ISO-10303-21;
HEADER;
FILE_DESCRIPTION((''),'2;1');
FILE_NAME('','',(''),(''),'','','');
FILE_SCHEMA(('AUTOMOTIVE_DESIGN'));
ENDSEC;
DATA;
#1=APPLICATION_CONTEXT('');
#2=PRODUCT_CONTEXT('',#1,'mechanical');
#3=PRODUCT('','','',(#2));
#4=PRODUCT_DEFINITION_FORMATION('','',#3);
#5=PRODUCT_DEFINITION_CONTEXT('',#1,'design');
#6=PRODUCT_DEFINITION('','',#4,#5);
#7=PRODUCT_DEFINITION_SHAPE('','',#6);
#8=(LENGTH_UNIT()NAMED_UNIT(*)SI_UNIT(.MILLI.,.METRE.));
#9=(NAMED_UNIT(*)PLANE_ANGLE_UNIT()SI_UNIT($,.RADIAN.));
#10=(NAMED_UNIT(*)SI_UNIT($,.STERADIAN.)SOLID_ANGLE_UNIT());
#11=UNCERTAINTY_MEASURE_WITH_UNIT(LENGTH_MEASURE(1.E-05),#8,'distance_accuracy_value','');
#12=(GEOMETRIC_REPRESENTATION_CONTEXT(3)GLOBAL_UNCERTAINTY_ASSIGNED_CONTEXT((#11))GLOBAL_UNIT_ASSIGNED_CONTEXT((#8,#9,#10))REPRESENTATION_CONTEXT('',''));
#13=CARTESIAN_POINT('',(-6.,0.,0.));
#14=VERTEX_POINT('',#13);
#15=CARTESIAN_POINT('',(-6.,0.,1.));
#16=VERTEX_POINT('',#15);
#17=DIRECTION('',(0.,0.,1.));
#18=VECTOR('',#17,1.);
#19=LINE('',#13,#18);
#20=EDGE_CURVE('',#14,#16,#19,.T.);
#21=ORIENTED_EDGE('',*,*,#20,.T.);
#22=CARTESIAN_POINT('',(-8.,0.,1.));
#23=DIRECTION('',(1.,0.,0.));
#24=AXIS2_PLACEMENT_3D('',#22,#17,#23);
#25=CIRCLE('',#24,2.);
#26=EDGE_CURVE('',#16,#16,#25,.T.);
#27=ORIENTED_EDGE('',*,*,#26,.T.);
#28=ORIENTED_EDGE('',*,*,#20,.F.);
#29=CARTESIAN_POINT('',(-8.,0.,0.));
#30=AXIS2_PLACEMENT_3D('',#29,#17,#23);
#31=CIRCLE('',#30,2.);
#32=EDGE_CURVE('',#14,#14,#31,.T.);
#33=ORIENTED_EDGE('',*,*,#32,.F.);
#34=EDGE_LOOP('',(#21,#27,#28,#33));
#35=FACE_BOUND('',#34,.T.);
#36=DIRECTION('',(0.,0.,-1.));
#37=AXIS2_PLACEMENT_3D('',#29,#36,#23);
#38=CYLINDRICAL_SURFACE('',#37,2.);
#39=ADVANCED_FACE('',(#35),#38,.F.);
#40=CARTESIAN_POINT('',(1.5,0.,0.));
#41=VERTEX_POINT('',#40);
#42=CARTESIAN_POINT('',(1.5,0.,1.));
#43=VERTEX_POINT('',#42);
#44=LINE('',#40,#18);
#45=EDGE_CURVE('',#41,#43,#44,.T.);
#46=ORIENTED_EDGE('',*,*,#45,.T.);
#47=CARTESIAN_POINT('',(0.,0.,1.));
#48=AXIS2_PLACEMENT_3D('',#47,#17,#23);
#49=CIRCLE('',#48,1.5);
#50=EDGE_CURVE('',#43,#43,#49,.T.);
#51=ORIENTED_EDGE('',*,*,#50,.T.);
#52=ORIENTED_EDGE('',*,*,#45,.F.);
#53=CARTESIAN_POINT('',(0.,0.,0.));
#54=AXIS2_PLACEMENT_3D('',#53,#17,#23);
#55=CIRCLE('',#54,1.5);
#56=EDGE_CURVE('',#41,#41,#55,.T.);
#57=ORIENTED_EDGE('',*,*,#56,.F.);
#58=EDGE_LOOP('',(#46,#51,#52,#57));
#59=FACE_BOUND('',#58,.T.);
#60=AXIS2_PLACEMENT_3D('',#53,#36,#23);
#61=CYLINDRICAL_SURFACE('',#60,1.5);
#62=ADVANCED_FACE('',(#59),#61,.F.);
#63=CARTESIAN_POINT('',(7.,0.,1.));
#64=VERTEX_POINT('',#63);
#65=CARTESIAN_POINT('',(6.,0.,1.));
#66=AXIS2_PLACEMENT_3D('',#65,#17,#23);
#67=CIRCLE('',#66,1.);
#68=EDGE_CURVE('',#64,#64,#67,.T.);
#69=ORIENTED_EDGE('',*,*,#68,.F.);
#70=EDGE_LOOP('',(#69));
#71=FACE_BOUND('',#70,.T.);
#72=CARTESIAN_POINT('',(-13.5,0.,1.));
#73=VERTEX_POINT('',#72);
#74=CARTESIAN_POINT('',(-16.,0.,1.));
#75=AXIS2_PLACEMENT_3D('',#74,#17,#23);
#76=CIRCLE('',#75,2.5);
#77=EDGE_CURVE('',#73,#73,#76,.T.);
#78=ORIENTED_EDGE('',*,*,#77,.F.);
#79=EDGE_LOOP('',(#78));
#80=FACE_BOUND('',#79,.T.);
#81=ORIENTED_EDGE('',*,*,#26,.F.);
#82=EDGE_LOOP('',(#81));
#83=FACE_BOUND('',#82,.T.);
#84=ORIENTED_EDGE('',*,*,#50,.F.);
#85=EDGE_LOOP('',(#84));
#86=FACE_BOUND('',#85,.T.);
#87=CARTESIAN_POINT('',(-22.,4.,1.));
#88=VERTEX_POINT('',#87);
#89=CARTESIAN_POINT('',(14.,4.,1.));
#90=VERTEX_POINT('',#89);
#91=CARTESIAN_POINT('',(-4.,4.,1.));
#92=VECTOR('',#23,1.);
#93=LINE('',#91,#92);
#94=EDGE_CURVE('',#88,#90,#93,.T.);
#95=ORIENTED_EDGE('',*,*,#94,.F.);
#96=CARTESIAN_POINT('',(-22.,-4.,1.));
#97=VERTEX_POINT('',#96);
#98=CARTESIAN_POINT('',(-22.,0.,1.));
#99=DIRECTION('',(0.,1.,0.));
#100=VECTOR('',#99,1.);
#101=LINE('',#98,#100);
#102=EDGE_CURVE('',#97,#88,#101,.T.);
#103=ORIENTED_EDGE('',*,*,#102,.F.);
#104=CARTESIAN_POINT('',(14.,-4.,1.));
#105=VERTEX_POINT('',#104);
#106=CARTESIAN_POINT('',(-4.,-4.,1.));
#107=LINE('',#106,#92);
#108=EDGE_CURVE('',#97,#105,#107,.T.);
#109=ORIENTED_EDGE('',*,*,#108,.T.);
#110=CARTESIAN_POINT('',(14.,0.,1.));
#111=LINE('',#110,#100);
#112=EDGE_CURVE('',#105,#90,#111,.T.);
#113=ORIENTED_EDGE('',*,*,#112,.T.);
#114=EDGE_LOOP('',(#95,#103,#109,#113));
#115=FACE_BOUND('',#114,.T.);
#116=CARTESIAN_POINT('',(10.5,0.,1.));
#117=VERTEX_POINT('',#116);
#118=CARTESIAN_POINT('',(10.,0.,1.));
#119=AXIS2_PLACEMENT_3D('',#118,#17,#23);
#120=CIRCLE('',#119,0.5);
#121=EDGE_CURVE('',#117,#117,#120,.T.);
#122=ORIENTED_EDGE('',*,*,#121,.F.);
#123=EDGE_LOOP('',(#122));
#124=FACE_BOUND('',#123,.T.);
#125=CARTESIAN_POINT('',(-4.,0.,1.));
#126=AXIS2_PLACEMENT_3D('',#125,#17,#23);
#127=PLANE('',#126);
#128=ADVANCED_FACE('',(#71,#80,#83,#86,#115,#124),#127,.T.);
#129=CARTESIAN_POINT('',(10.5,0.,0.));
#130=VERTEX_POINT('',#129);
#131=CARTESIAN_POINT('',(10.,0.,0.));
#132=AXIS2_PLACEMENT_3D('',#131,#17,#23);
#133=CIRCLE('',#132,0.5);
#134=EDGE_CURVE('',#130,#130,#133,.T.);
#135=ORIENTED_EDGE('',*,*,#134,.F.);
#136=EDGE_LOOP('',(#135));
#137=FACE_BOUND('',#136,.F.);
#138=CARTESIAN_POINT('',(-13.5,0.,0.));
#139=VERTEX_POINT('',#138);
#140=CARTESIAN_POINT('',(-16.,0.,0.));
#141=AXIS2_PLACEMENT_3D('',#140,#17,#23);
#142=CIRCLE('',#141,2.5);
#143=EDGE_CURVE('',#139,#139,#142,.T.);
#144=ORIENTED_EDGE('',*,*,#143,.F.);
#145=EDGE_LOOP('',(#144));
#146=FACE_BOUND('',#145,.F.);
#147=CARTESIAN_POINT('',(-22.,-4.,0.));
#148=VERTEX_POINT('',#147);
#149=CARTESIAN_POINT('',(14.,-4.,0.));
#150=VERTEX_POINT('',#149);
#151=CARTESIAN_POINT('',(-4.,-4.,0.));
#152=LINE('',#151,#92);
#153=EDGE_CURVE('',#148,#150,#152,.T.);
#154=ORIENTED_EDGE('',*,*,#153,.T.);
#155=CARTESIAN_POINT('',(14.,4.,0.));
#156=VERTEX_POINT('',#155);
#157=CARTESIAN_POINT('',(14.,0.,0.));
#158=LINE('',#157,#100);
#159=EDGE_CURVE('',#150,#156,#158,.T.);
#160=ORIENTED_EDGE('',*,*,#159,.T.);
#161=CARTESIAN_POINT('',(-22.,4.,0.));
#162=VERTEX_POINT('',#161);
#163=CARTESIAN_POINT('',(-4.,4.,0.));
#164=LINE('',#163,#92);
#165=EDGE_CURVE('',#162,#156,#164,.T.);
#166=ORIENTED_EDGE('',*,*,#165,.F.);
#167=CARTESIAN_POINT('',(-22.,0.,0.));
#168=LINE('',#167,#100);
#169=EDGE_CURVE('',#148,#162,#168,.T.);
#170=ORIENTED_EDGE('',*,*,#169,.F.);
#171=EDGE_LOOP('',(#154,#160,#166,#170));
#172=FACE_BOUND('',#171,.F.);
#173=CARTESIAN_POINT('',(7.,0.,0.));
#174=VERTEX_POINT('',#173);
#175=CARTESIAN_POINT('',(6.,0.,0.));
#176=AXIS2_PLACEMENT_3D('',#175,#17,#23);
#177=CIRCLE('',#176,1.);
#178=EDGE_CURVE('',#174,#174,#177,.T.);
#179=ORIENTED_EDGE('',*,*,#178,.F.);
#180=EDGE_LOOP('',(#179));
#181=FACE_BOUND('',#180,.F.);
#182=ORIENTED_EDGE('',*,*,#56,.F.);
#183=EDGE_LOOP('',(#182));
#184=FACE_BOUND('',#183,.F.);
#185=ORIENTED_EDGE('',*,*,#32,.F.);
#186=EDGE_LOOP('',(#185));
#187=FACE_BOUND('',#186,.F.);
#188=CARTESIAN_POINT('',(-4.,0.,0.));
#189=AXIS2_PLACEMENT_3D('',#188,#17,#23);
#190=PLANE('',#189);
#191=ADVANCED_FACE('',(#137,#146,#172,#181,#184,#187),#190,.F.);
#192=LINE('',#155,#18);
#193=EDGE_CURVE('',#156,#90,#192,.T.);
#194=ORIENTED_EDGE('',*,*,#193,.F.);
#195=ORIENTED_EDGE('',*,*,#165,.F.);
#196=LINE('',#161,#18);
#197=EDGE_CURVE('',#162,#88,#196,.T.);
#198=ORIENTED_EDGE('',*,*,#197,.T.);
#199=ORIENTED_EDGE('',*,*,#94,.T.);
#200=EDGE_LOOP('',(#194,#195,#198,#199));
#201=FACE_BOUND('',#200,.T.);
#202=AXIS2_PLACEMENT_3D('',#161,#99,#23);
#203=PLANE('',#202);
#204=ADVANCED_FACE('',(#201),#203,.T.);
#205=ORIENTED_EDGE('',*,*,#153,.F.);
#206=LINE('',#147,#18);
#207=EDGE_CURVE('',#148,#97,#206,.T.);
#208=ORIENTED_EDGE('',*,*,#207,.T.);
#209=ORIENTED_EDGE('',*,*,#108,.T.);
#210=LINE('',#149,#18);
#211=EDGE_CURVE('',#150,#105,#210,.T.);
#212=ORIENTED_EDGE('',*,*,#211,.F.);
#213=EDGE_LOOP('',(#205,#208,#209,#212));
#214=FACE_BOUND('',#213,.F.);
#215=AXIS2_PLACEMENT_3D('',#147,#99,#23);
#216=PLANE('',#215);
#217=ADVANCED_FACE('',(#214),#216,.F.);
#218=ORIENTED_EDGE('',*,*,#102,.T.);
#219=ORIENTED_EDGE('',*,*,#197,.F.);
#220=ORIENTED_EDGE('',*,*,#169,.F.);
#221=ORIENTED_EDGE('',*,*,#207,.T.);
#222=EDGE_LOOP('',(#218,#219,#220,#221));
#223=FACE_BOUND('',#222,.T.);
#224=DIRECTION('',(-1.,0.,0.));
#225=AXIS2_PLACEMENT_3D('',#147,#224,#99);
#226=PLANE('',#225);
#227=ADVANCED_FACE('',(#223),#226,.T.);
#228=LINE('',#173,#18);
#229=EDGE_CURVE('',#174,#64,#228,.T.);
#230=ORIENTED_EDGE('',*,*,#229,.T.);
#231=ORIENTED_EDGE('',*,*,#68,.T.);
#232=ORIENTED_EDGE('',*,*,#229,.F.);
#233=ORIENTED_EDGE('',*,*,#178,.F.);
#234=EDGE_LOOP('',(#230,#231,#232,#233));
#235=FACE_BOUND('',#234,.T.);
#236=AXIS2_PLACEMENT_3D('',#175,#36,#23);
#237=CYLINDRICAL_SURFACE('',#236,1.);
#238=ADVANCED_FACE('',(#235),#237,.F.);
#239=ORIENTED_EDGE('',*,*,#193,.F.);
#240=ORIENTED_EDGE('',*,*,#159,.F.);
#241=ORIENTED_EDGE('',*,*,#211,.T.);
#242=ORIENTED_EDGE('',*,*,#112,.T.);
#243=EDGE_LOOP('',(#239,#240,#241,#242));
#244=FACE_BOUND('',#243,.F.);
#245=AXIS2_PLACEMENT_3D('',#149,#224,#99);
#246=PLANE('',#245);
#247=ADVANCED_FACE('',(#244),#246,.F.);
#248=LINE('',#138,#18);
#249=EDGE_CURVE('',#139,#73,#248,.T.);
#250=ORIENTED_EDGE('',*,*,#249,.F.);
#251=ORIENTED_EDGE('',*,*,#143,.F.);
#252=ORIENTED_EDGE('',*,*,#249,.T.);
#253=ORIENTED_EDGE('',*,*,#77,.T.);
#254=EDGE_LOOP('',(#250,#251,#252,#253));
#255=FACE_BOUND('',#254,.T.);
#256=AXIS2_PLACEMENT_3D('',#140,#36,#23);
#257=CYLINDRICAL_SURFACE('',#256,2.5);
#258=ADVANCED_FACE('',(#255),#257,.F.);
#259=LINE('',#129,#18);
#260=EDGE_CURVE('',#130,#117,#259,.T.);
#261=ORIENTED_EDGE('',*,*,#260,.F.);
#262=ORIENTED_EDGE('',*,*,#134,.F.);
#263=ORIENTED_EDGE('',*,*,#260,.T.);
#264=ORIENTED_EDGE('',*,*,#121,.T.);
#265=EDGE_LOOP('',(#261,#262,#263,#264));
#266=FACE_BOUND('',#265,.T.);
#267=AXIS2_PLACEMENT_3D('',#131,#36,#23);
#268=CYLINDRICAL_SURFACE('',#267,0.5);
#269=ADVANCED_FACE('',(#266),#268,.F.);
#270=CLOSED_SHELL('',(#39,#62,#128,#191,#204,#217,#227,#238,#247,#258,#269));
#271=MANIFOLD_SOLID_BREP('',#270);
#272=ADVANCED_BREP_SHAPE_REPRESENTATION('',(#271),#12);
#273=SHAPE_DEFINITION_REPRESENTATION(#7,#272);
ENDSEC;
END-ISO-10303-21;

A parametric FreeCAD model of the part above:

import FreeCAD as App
import Part
import Sketcher
Q = App.Units.Quantity

doc = App.newDocument("Part")
body = doc.addObject("PartDesign::Body", "Body")

# Sketch on XY plane
sketch1 = body.newObject("Sketcher::SketchObject", "Sketch")
sketch1.AttachmentSupport = (doc.getObject("XY_Plane"), [""])
sketch1.MapMode = "FlatFace"
sketch1.addGeometry(Part.LineSegment(App.Vector(-22, 4, 0), App.Vector(-22, -4, 0)), False)
sketch1.addGeometry(Part.LineSegment(App.Vector(-22, -4, 0), App.Vector(14, -4, 0)), False)
sketch1.addGeometry(Part.LineSegment(App.Vector(14, -4, 0), App.Vector(14, 4, 0)), False)
sketch1.addGeometry(Part.LineSegment(App.Vector(14, 4, 0), App.Vector(-22, 4, 0)), False)
sketch1.addGeometry(Part.Circle(App.Vector(-16, 0, 0), App.Vector(0, 0, 1), 2.5), False)
sketch1.addGeometry(Part.Circle(App.Vector(-8, 0, 0), App.Vector(0, 0, 1), 2), False)
sketch1.addGeometry(Part.Circle(App.Vector(0, 0, 0), App.Vector(0, 0, 1), 1.5), False)
sketch1.addGeometry(Part.Circle(App.Vector(6, 0, 0), App.Vector(0, 0, 1), 1), False)
sketch1.addGeometry(Part.Circle(App.Vector(10, 0, 0), App.Vector(0, 0, 1), 0.5), False)
sketch1.addConstraint(Sketcher.Constraint("Coincident", 0, 2, 1, 1))
sketch1.addConstraint(Sketcher.Constraint("Coincident", 1, 2, 2, 1))
sketch1.addConstraint(Sketcher.Constraint("Coincident", 2, 2, 3, 1))
sketch1.addConstraint(Sketcher.Constraint("Coincident", 3, 2, 0, 1))
sketch1.addConstraint(Sketcher.Constraint("Vertical", 0))
sketch1.addConstraint(Sketcher.Constraint("Horizontal", 1))
sketch1.addConstraint(Sketcher.Constraint("Vertical", 2))
sketch1.addConstraint(Sketcher.Constraint("Horizontal", 3))
sketch1.addConstraint(Sketcher.Constraint("Coincident", 6, 3, -1, 1))
sketch1.addConstraint(Sketcher.Constraint("PointOnObject", 4, 3, -1))
sketch1.addConstraint(Sketcher.Constraint("PointOnObject", 5, 3, -1))
sketch1.addConstraint(Sketcher.Constraint("PointOnObject", 7, 3, -1))
sketch1.addConstraint(Sketcher.Constraint("PointOnObject", 8, 3, -1))
sketch1.addConstraint(Sketcher.Constraint("Diameter", 4, Q("5 mm")))
sketch1.addConstraint(Sketcher.Constraint("Diameter", 5, Q("4 mm")))
sketch1.addConstraint(Sketcher.Constraint("Diameter", 6, Q("3 mm")))
sketch1.addConstraint(Sketcher.Constraint("Diameter", 7, Q("2 mm")))
sketch1.addConstraint(Sketcher.Constraint("Diameter", 8, Q("1 mm")))
sketch1.addConstraint(Sketcher.Constraint("DistanceX", 1, 1, 1, 2, Q("36 mm")))
sketch1.addConstraint(Sketcher.Constraint("DistanceY", 0, 2, 0, 1, Q("8 mm")))
sketch1.addConstraint(Sketcher.Constraint("DistanceX", 4, 3, -1, 1, Q("16 mm")))
sketch1.addConstraint(Sketcher.Constraint("DistanceX", 5, 3, -1, 1, Q("8 mm")))
sketch1.addConstraint(Sketcher.Constraint("DistanceX", -1, 1, 7, 3, Q("6 mm")))
sketch1.addConstraint(Sketcher.Constraint("DistanceX", -1, 1, 8, 3, Q("10 mm")))
sketch1.addConstraint(Sketcher.Constraint("DistanceX", 0, 2, -1, 1, Q("22 mm")))
sketch1.addConstraint(Sketcher.Constraint("DistanceY", 0, 2, -1, 1, Q("4 mm")))
pad1 = body.newObject("PartDesign::Pad", "Pad")
pad1.Profile = sketch1
pad1.Length = 1

doc.recompute()
